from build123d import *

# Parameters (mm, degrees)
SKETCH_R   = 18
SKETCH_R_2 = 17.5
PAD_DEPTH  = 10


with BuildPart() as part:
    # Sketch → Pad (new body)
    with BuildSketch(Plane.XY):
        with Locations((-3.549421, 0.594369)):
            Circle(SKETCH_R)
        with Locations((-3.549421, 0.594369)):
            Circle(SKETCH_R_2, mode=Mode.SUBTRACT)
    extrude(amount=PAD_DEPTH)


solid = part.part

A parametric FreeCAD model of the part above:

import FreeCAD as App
import Part
import Sketcher

V = App.Vector
Q = App.Units.Quantity

doc = App.newDocument("Part")
body = doc.addObject("PartDesign::Body", "Body")

sketch1 = body.newObject("Sketcher::SketchObject", "Sketch")
sketch1.AttachmentSupport = (doc.getObject("XY_Plane"), [""])
sketch1.MapMode = "FlatFace"
sketch1.addGeometry([
    Part.Circle(V(-4, 1, 0), V(0, 0, 1), 18),
    Part.Circle(V(-4, 1, 0), V(0, 0, 1), 18),
], False)
sketch1.addConstraint([
    Sketcher.Constraint("Coincident", 1, 3, 0, 3),
    Sketcher.Constraint("Diameter", 0, Q("36 mm")),
    Sketcher.Constraint("Diameter", 1, Q("35 mm")),
    Sketcher.Constraint("DistanceX", 0, 3, -1, 1, Q("3.549421 mm")),
    Sketcher.Constraint("DistanceY", -1, 1, 0, 3, Q("0.594369 mm")),
])
pad1 = body.newObject("PartDesign::Pad", "Pad")
pad1.Profile = sketch1
pad1.Length = 10

doc.recompute()
